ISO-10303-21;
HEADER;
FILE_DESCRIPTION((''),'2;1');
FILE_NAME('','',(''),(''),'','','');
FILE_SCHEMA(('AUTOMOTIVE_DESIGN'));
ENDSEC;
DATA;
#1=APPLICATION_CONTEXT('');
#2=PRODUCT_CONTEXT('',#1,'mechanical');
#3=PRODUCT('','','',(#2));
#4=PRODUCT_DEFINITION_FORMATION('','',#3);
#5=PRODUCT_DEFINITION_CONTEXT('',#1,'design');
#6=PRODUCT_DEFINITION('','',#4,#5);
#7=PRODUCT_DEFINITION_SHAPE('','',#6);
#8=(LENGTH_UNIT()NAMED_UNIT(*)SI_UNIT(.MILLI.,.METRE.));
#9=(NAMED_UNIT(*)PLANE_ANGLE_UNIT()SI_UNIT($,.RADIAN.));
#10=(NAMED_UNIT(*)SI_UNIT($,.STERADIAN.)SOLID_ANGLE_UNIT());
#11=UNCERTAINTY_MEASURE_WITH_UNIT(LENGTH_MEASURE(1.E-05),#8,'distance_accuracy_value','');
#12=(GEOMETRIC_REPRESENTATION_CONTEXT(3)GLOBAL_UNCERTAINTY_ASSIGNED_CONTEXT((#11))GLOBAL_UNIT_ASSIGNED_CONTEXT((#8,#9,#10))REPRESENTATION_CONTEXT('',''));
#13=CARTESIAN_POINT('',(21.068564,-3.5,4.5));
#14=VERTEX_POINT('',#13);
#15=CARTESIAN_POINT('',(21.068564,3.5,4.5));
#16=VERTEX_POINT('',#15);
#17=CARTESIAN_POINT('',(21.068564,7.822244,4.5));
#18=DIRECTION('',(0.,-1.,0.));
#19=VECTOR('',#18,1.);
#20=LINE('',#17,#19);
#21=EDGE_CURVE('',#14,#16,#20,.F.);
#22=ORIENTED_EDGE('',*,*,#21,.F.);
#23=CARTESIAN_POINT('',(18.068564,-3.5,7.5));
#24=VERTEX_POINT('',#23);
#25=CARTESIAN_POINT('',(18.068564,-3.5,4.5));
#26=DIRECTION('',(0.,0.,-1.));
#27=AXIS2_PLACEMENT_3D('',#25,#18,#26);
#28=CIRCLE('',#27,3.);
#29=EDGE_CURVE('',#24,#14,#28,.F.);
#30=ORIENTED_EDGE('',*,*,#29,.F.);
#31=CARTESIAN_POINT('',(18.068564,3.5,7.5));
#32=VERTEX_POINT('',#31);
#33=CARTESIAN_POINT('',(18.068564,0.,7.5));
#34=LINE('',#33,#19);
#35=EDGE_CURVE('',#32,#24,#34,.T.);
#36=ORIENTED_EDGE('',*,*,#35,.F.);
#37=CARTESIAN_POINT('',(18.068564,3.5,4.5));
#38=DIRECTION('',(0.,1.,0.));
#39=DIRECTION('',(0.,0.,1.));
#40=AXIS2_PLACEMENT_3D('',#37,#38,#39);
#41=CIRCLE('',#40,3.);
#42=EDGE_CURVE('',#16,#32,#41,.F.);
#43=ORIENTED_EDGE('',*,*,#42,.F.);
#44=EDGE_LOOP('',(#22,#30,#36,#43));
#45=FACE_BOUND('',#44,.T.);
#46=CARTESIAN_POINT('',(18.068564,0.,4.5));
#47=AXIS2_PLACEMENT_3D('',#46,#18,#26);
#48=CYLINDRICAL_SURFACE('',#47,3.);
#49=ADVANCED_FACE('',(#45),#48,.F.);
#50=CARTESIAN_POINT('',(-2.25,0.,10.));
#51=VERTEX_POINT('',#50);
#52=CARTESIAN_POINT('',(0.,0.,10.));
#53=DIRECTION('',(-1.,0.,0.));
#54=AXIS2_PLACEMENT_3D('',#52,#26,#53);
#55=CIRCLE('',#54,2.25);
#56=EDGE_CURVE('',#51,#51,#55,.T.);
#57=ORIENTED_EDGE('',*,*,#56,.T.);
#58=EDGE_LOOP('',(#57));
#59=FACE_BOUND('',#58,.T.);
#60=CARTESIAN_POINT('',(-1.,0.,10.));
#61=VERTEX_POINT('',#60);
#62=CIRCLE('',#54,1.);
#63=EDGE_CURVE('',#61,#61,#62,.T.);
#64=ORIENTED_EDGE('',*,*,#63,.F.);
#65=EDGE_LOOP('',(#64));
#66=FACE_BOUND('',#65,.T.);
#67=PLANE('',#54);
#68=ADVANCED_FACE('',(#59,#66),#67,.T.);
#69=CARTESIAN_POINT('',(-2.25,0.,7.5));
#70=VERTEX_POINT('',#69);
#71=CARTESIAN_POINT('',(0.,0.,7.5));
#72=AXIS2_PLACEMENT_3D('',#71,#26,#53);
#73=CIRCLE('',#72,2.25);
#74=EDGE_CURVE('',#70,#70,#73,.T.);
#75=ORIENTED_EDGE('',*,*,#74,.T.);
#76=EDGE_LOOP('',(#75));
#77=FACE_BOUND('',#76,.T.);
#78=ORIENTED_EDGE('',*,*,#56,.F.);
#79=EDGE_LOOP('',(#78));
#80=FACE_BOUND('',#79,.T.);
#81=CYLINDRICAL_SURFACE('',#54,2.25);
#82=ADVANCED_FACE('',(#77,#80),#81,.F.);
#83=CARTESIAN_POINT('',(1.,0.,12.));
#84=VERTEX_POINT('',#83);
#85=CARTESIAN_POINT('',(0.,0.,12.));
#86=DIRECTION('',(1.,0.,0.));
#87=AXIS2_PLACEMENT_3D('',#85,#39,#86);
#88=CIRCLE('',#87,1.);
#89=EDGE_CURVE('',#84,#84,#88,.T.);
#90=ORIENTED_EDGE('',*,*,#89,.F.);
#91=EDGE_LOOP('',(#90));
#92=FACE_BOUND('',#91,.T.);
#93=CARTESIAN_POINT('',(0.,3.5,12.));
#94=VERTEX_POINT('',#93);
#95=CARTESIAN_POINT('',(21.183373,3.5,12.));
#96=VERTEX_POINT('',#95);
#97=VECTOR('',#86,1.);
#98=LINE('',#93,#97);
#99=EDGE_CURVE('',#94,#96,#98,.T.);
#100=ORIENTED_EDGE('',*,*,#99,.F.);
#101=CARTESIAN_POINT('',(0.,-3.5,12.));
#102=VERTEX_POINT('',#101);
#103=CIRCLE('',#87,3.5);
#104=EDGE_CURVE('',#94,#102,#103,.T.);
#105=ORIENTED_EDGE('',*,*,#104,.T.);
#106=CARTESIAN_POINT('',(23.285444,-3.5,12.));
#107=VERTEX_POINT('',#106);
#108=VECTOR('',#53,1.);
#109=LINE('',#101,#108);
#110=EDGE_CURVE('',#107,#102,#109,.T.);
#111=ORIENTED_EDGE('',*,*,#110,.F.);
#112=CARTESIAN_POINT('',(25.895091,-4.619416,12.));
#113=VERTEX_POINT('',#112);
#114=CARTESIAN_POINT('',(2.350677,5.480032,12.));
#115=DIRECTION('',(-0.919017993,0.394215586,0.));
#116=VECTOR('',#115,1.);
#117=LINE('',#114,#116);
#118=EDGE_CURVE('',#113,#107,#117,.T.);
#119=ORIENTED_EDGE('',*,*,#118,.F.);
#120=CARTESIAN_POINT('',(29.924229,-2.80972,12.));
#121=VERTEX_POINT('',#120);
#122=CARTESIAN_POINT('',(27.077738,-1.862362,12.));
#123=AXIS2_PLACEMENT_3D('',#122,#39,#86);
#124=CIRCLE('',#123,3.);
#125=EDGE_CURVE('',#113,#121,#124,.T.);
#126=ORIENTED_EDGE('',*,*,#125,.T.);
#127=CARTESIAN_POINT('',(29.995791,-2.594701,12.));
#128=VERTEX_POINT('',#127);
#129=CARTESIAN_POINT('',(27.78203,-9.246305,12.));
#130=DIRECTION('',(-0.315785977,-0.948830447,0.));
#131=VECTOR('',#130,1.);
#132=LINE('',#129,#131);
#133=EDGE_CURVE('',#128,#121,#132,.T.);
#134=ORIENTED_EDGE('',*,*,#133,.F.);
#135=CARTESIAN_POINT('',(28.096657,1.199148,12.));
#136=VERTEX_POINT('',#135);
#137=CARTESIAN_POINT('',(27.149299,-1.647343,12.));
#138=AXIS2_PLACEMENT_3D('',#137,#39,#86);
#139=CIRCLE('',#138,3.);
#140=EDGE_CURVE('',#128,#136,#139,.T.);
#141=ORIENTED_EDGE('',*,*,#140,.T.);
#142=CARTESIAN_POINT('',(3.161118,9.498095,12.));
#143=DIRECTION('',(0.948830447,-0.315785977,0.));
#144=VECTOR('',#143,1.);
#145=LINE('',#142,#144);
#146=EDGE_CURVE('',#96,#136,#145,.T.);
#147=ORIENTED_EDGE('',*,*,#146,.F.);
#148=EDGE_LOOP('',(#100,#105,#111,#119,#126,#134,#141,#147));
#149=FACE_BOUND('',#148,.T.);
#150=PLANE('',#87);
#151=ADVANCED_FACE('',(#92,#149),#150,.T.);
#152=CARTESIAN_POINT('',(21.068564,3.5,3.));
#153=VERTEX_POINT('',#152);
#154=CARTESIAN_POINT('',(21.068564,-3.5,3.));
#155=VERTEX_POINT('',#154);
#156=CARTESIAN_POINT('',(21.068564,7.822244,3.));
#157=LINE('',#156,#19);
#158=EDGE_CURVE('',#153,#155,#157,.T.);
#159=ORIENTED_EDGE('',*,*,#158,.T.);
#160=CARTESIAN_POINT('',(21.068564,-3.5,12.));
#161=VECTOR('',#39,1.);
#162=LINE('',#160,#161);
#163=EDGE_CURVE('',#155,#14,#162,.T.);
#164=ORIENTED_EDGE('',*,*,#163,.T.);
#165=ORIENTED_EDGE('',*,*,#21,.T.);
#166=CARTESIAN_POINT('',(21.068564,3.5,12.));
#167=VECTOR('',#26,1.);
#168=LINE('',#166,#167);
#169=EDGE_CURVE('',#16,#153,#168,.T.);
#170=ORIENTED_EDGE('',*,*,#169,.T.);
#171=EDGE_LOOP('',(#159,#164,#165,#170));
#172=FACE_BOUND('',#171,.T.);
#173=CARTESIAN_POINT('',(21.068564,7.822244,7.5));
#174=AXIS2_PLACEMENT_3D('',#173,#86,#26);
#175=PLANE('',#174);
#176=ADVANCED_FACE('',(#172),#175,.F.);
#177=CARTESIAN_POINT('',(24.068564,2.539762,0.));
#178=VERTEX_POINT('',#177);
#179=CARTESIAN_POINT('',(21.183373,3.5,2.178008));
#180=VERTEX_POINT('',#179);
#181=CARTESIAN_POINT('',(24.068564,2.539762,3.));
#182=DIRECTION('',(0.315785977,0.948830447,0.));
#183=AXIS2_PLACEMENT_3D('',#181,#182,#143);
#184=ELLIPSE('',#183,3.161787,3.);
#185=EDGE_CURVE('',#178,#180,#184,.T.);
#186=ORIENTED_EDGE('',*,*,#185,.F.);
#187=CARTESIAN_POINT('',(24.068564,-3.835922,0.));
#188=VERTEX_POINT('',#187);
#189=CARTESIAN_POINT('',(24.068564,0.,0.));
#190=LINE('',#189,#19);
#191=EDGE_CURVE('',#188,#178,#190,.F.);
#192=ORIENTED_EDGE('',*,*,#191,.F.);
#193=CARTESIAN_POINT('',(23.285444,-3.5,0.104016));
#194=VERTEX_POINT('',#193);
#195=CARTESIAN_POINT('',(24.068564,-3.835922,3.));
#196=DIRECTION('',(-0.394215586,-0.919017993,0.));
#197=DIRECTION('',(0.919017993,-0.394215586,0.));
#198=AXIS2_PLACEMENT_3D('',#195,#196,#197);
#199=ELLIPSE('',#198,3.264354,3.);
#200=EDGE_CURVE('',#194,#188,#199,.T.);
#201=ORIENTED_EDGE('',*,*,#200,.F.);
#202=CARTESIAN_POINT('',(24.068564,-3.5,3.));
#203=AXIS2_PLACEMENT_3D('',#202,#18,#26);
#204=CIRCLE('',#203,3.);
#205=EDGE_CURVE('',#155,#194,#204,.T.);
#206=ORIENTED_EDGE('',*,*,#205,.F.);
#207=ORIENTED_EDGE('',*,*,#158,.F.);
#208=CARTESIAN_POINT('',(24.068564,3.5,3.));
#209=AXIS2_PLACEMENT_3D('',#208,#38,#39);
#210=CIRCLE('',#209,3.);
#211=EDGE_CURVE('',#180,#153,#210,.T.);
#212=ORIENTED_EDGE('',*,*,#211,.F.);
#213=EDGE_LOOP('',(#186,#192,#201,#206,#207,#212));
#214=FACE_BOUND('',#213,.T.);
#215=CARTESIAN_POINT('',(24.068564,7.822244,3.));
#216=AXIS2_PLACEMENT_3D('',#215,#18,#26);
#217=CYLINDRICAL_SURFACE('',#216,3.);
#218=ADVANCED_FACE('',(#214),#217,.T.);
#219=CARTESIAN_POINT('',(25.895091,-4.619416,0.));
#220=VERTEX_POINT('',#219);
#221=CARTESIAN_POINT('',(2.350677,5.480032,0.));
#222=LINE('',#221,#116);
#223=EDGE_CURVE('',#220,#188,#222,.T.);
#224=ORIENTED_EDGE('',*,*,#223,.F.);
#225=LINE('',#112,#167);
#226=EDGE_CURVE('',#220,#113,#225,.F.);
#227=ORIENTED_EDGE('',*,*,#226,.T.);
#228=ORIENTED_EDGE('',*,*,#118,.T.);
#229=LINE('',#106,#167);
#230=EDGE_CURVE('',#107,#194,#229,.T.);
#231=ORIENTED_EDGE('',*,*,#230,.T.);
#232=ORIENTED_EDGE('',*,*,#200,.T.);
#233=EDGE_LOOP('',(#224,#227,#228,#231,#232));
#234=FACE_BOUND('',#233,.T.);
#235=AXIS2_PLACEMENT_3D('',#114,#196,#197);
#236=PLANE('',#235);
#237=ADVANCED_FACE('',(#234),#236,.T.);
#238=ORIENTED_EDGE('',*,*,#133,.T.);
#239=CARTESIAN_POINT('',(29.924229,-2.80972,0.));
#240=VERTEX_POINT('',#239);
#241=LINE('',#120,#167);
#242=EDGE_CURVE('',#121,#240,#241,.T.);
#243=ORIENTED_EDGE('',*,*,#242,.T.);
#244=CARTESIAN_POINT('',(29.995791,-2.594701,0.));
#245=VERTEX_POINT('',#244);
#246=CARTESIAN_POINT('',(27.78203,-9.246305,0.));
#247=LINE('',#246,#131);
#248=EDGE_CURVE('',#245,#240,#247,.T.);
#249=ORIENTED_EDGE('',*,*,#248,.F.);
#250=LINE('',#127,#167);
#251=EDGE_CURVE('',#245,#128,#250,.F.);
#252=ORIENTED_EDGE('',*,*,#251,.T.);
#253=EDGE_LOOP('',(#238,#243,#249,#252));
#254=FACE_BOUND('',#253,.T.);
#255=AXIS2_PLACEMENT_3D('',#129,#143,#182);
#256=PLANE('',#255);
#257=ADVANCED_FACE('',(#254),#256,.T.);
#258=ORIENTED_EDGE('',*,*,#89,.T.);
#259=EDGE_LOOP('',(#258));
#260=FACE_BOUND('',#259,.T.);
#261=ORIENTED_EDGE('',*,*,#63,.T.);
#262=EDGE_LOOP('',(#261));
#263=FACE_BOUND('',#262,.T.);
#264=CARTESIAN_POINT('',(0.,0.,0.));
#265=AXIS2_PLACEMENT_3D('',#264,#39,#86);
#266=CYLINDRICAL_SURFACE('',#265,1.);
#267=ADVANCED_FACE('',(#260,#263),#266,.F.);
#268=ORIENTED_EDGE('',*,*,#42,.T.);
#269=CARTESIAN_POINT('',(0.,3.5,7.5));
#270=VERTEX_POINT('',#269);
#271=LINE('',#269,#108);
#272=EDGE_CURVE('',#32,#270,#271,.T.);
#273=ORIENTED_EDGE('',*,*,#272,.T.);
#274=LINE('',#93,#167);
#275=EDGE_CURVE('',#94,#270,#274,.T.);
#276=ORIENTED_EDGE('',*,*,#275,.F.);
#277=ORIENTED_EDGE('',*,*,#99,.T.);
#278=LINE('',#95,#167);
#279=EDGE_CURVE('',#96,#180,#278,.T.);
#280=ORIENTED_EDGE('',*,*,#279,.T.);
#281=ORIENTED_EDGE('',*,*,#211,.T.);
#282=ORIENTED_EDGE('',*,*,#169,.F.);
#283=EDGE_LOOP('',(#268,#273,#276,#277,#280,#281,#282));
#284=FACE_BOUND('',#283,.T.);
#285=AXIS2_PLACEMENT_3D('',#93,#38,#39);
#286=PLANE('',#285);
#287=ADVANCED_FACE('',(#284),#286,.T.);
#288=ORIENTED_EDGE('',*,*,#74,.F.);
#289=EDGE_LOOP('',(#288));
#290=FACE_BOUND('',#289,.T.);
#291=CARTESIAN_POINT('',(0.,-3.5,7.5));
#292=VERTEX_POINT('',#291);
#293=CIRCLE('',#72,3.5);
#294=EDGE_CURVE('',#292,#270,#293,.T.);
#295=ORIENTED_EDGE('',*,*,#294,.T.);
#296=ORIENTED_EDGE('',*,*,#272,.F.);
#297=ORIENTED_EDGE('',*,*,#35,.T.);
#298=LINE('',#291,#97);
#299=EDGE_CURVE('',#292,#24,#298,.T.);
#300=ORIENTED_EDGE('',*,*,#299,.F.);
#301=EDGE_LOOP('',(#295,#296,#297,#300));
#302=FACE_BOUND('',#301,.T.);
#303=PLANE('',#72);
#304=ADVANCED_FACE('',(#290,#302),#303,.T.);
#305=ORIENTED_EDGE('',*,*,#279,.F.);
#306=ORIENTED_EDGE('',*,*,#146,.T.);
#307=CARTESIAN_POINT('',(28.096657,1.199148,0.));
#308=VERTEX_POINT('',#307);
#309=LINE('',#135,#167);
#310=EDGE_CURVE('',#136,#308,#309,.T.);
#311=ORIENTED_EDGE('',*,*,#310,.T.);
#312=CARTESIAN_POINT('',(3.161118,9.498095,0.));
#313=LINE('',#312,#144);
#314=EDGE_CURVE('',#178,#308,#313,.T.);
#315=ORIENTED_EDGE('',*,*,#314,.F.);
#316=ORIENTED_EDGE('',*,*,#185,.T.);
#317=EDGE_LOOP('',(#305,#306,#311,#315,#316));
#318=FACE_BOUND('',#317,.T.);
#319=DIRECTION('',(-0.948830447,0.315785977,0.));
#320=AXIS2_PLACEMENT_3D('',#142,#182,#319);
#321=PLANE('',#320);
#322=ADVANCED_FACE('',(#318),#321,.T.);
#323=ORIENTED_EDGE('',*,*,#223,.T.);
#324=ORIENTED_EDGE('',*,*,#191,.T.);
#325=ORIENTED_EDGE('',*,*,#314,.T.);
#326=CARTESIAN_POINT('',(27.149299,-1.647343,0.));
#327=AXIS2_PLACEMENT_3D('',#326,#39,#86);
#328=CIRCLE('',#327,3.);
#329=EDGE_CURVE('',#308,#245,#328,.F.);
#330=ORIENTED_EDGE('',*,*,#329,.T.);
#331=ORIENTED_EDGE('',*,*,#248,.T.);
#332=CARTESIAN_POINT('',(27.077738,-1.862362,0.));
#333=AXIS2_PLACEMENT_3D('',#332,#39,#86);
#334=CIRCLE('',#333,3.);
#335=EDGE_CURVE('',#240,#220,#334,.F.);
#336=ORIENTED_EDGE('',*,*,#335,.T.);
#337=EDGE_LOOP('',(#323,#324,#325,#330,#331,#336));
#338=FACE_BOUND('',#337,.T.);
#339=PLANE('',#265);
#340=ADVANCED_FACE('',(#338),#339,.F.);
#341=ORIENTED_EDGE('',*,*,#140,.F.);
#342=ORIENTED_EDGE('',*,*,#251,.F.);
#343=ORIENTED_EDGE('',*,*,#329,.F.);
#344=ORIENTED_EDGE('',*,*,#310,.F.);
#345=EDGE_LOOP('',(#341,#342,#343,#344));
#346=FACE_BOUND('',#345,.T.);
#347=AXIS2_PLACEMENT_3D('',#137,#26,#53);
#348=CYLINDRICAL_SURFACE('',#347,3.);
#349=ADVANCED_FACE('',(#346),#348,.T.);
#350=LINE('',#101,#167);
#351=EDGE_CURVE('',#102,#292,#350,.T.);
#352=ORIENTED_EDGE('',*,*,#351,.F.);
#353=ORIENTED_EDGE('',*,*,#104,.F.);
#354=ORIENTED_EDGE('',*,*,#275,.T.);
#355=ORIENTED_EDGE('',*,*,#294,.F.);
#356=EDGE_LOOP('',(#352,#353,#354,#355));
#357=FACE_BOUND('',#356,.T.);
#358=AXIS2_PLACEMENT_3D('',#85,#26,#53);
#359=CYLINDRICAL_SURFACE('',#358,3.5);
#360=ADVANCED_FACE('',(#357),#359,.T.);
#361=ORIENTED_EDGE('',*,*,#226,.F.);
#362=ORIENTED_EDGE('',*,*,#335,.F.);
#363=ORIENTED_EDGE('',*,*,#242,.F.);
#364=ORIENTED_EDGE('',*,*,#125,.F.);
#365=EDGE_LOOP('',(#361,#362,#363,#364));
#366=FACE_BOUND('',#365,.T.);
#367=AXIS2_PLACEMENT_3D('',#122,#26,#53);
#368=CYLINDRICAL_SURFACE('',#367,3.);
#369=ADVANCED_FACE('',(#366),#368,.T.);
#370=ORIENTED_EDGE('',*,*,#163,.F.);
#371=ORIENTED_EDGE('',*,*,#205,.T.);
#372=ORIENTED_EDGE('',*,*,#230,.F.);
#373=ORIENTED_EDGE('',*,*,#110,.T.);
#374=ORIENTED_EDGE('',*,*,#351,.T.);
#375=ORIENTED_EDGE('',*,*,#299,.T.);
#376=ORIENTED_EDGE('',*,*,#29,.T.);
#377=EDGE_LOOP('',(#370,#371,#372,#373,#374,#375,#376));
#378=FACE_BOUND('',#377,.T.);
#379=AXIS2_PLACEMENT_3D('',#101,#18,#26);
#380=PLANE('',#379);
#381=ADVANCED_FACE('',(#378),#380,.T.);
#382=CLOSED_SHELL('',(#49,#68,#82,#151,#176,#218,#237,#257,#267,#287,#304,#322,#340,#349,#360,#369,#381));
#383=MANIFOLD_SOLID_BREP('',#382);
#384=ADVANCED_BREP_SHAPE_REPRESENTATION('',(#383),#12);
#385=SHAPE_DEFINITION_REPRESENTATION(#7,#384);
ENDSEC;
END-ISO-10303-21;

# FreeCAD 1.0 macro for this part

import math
import FreeCAD as App
import Part
import Sketcher
Q = App.Units.Quantity


def edges_at(feature, points):
    """Names of the edges that pass closest to the given points."""
    edges = feature.Shape.Edges
    near = lambda p: min(range(len(edges)), key=lambda i: edges[i].distToShape(Part.Vertex(*p))[0])
    return sorted({f"Edge{near(p) + 1}" for p in points})


def add_polygon(sketch, points):
    """Adds a closed chain of lines whose ends are joined by coincident constraints."""
    first, n = sketch.GeometryCount, len(points)
    for a, b in zip(points, points[1:] + points[:1]):
        sketch.addGeometry(Part.LineSegment(App.Vector(*a, 0), App.Vector(*b, 0)), False)
    for i in range(n):
        sketch.addConstraint(Sketcher.Constraint("Coincident", first + i, 2, first + (i + 1) % n, 1))

doc = App.newDocument("Part")
body = doc.addObject("PartDesign::Body", "Body")

# Sketch on XY plane
sketch1 = body.newObject("Sketcher::SketchObject", "Sketch")
sketch1.AttachmentSupport = (doc.getObject("XY_Plane"), [""])
sketch1.MapMode = "FlatFace"
sketch1.addGeometry(Part.LineSegment(App.Vector(21.2, 3.5, 0), App.Vector(0, 3.5, 0)), False)
sketch1.addGeometry(Part.ArcOfCircle(Part.Circle(App.Vector(0, 0, 0), App.Vector(0, 0, 1), 3.5), math.radians(90), math.radians(270)), False)
sketch1.addGeometry(Part.LineSegment(App.Vector(0, -3.5, 0), App.Vector(23.3, -3.5, 0)), False)
sketch1.addGeometry(Part.LineSegment(App.Vector(23.3, -3.5, 0), App.Vector(28.9, -5.9, 0)), False)
sketch1.addGeometry(Part.LineSegment(App.Vector(28.9, -5.9, 0), App.Vector(30.9, 0.3, 0)), False)
sketch1.addGeometry(Part.LineSegment(App.Vector(30.9, 0.3, 0), App.Vector(21.2, 3.5, 0)), False)
sketch1.addConstraint(Sketcher.Constraint("Tangent", 0, 2, 1, 1))
sketch1.addConstraint(Sketcher.Constraint("Tangent", 1, 2, 2, 1))
sketch1.addConstraint(Sketcher.Constraint("Coincident", 2, 2, 3, 1))
sketch1.addConstraint(Sketcher.Constraint("Coincident", 3, 2, 4, 1))
sketch1.addConstraint(Sketcher.Constraint("Coincident", 4, 2, 5, 1))
sketch1.addConstraint(Sketcher.Constraint("Coincident", 5, 2, 0, 1))
sketch1.addConstraint(Sketcher.Constraint("Horizontal", 0))
sketch1.addConstraint(Sketcher.Constraint("Horizontal", 2))
sketch1.addConstraint(Sketcher.Constraint("Coincident", 1, 3, -1, 1))
sketch1.addConstraint(Sketcher.Constraint("Perpendicular", 4, 5))
sketch1.addConstraint(Sketcher.Constraint("Radius", 1, Q("3.5 mm")))
sketch1.addConstraint(Sketcher.Constraint("Distance", 3, Q("6.102582 mm")))
sketch1.addConstraint(Sketcher.Constraint("Distance", 5, Q("10.286111 mm")))
sketch1.addConstraint(Sketcher.Constraint("DistanceX", 0, 2, 0, 1, Q("21.183373 mm")))
sketch1.addConstraint(Sketcher.Constraint("DistanceX", 2, 1, 2, 2, Q("23.285444 mm")))
sketch1.addConstraint(Sketcher.Constraint("DistanceX", -1, 1, 4, 2, Q("30.943149 mm")))
pad1 = body.newObject("PartDesign::Pad", "Pad")
pad1.Profile = sketch1
pad1.Length = 12

# Sketch on XY plane
sketch2 = body.newObject("Sketcher::SketchObject", "Sketch001")
sketch2.AttachmentSupport = (doc.getObject("XY_Plane"), [""])
sketch2.MapMode = "FlatFace"
add_polygon(sketch2, [(21, 8), (21, -8), (-6, -8), (-6, 8)])  # lines 0-3
sketch2.addConstraint(Sketcher.Constraint("Vertical", 0))
sketch2.addConstraint(Sketcher.Constraint("Horizontal", 1))
sketch2.addConstraint(Sketcher.Constraint("Vertical", 2))
sketch2.addConstraint(Sketcher.Constraint("Horizontal", 3))
sketch2.addConstraint(Sketcher.Constraint("DistanceX", 1, 2, 1, 1, Q("27.357601 mm")))
sketch2.addConstraint(Sketcher.Constraint("DistanceY", 0, 2, 0, 1, Q("15.91906 mm")))
sketch2.addConstraint(Sketcher.Constraint("DistanceX", -1, 1, 0, 2, Q("21.068564 mm")))
sketch2.addConstraint(Sketcher.Constraint("DistanceY", 0, 2, -1, 1, Q("8.096817 mm")))
pocket1 = body.newObject("PartDesign::Pocket", "Pocket")
pocket1.Profile = sketch2
pocket1.Length = 7.5
pocket1.Reversed = True
doc.recompute()

fillet = body.newObject("PartDesign::Fillet", "Fillet")
fillet.Base = (pocket1, edges_at(pocket1, [(30.943, 0.252, 6), (28.894, -5.906, 6)]))
fillet.Radius = 3

# Sketch on XY plane
sketch3 = body.newObject("Sketcher::SketchObject", "Sketch002")
sketch3.AttachmentSupport = (doc.getObject("XY_Plane"), [""])
sketch3.MapMode = "FlatFace"
sketch3.AttachmentOffset = App.Placement(App.Vector(0, 0, 7.5), App.Rotation())
sketch3.addGeometry(Part.Circle(App.Vector(0, 0, 0), App.Vector(0, 0, 1), 2.2), False)
sketch3.addConstraint(Sketcher.Constraint("Coincident", 0, 3, -1, 1))
sketch3.addConstraint(Sketcher.Constraint("Diameter", 0, Q("4.5 mm")))
pocket2 = body.newObject("PartDesign::Pocket", "Pocket001")
pocket2.Profile = sketch3
pocket2.Length = 2.5
pocket2.Reversed = True
doc.recompute()

fillet2 = body.newObject("PartDesign::Fillet", "Fillet001")
fillet2.Base = (pocket2, edges_at(pocket2, [(21.069, 0, 7.5), (21.069, 0, 0)]))
fillet2.Radius = 3

# Sketch on XY plane
sketch4 = body.newObject("Sketcher::SketchObject", "Sketch003")
sketch4.AttachmentSupport = (doc.getObject("XY_Plane"), [""])
sketch4.MapMode = "FlatFace"
sketch4.AttachmentOffset = App.Placement(App.Vector(0, 0, 12), App.Rotation())
sketch4.addGeometry(Part.Circle(App.Vector(0, 0, 0), App.Vector(0, 0, 1), 1), False)
sketch4.addConstraint(Sketcher.Constraint("Coincident", 0, 3, -1, 1))
sketch4.addConstraint(Sketcher.Constraint("Diameter", 0, Q("2 mm")))
pocket3 = body.newObject("PartDesign::Pocket", "Pocket002")
pocket3.Profile = sketch4
pocket3.Type = "ThroughAll"

doc.recompute()
